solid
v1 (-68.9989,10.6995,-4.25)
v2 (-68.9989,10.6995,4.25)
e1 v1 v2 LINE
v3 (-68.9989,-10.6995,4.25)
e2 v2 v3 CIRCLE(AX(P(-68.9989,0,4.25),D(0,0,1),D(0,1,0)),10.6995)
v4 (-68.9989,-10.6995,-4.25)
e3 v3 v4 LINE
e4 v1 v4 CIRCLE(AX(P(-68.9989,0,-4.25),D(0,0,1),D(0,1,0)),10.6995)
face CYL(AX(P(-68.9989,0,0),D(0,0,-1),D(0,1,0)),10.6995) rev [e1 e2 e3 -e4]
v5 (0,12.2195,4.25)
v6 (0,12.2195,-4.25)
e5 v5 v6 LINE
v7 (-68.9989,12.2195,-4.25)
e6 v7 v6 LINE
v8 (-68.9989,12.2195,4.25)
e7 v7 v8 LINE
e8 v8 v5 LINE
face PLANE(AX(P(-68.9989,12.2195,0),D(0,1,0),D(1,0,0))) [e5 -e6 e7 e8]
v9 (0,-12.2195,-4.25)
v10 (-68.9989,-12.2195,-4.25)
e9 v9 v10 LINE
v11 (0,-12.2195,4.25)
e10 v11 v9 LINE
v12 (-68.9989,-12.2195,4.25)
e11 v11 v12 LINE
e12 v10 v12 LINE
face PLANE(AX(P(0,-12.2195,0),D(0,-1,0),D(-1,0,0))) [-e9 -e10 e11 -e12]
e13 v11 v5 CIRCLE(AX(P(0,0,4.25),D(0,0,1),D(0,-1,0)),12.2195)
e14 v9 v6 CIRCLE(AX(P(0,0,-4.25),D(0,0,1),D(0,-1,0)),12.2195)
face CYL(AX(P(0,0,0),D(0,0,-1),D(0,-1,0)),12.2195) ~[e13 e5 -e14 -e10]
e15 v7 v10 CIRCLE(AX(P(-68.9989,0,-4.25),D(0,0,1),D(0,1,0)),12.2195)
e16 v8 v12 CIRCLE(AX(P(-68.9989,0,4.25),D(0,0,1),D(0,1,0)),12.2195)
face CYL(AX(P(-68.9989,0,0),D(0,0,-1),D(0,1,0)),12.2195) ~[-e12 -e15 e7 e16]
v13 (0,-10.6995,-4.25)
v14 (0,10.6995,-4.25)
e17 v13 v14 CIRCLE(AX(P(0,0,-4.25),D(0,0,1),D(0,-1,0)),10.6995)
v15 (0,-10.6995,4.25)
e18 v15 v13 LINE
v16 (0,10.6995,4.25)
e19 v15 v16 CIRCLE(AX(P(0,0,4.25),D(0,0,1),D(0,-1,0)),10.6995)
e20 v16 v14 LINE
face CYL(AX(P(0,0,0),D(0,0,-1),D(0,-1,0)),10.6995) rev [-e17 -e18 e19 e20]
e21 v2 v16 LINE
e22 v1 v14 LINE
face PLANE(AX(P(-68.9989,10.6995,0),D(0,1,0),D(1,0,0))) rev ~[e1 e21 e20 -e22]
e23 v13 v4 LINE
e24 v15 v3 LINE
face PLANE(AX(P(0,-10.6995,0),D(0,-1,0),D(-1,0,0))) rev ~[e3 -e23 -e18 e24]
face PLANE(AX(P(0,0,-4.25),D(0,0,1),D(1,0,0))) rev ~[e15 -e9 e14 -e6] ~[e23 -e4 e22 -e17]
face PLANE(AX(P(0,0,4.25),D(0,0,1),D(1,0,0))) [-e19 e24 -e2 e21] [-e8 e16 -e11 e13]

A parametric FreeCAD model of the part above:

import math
import FreeCAD as App
import Part
import Sketcher
Q = App.Units.Quantity

doc = App.newDocument("Part")
body = doc.addObject("PartDesign::Body", "Body")

sketch1 = body.newObject("Sketcher::SketchObject", "Sketch")
sketch1.AttachmentSupport = (doc.getObject("XY_Plane"), [""])
sketch1.MapMode = "FlatFace"
sketch1.addGeometry([
    Part.LineSegment(App.Vector(0, 12, 0), App.Vector(-69, 12, 0)),
    Part.ArcOfCircle(Part.Circle(App.Vector(-69, 0, 0), App.Vector(0, 0, 1), 12), math.radians(90), math.radians(270)),
    Part.LineSegment(App.Vector(-69, -12, 0), App.Vector(0, -12, 0)),
    Part.ArcOfCircle(Part.Circle(App.Vector(0, 0, 0), App.Vector(0, 0, 1), 12), math.radians(-90), math.radians(90)),
    Part.ArcOfCircle(Part.Circle(App.Vector(-69, 0, 0), App.Vector(0, 0, 1), 11), math.radians(90), math.radians(270)),
    Part.LineSegment(App.Vector(-69, 11, 0), App.Vector(0, 11, 0)),
    Part.ArcOfCircle(Part.Circle(App.Vector(0, 0, 0), App.Vector(0, 0, 1), 11), math.radians(-90), math.radians(90)),
    Part.LineSegment(App.Vector(0, -11, 0), App.Vector(-69, -11, 0)),
], False)
sketch1.addConstraint([
    Sketcher.Constraint("Tangent", 0, 2, 1, 1),
    Sketcher.Constraint("Tangent", 1, 2, 2, 1),
    Sketcher.Constraint("Tangent", 2, 2, 3, 1),
    Sketcher.Constraint("Tangent", 3, 2, 0, 1),
    Sketcher.Constraint("Tangent", 4, 1, 5, 1),
    Sketcher.Constraint("Tangent", 5, 2, 6, 2),
    Sketcher.Constraint("Tangent", 6, 1, 7, 1),
    Sketcher.Constraint("Tangent", 7, 2, 4, 2),
    Sketcher.Constraint("Horizontal", 0),
    Sketcher.Constraint("Horizontal", 2),
    Sketcher.Constraint("Horizontal", 5),
    Sketcher.Constraint("Horizontal", 7),
    Sketcher.Constraint("Coincident", 3, 3, -1, 1),
    Sketcher.Constraint("Coincident", 6, 3, -1, 1),
    Sketcher.Constraint("Vertical", 4, 3, 0, 2),
    Sketcher.Constraint("DistanceY", 4, 1, 0, 2, Q("1.52 mm")),
    Sketcher.Constraint("Radius", 1, Q("12.2195 mm")),
    Sketcher.Constraint("DistanceX", 0, 2, 0, 1, Q("68.999 mm")),
])
pad1 = body.newObject("PartDesign::Pad", "Pad")
pad1.Profile = sketch1
pad1.Length = 8.5
pad1.Midplane = True

doc.recompute()
